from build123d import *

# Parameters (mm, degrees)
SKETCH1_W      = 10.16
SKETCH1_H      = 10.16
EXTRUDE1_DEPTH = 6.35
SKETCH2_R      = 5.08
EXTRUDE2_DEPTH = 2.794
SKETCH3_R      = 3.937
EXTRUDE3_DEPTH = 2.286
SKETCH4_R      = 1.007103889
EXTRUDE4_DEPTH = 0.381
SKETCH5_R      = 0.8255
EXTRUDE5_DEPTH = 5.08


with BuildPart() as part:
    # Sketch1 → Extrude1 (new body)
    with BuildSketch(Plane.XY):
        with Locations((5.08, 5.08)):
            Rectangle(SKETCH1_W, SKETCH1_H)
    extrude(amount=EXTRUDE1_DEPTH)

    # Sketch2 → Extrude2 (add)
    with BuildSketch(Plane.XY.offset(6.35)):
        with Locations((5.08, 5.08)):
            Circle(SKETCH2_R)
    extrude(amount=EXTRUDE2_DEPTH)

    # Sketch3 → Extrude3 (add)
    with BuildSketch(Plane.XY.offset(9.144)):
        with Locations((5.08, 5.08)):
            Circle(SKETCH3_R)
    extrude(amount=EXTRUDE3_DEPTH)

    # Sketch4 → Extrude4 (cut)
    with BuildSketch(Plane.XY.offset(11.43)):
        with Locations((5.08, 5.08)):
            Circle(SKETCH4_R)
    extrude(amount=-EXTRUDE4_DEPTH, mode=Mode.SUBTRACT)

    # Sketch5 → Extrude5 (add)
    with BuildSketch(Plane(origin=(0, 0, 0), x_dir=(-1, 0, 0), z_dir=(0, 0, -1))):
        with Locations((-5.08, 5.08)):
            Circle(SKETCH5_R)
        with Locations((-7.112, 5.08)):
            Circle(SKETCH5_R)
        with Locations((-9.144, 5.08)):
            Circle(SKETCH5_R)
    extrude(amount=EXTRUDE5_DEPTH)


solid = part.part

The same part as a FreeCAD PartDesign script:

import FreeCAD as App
import Part
import Sketcher
from FreeCAD import Vector
Q = App.Units.Quantity

doc = App.newDocument("Part")
params = doc.addObject("Spreadsheet::Sheet", "Params")
for row, (alias, value) in enumerate([
    ("sketch1_width", "0.4 in"),
    ("pad1_length", "0.25 in"),
    ("sketch2_diameter", "0.4 in"),
    ("pad2_length", "0.11 in"),
    ("sketch3_diameter", "0.31 in"),
    ("pad3_length", "0.09 in"),
    ("pocket1_length", "0.015 in"),
    ("sketch5_diameter", "0.065 in"),
    ("pad4_length", "0.2 in"),
], start=1):
    params.set(f"A{row}", alias)
    params.set(f"B{row}", "=" + value)
    params.setAlias(f"B{row}", alias)

body = doc.addObject("PartDesign::Body", "Body")

# Sketch on XY plane
sketch1 = doc.addObject("Sketcher::SketchObject", "Sketch")
body.addObject(sketch1)
sketch1.AttachmentSupport = (doc.XY_Plane, [""])
sketch1.MapMode = "FlatFace"
sketch1.addGeometry([
    Part.LineSegment(Vector(0, 10, 0), Vector(0, 0, 0)),
    Part.LineSegment(Vector(0, 0, 0), Vector(10, 0, 0)),
    Part.LineSegment(Vector(10, 0, 0), Vector(10, 10, 0)),
    Part.LineSegment(Vector(10, 10, 0), Vector(0, 10, 0)),
], False)
sketch1.addConstraint([
    Sketcher.Constraint("Coincident", 0, 2, 1, 1),
    Sketcher.Constraint("Coincident", 1, 2, 2, 1),
    Sketcher.Constraint("Coincident", 2, 2, 3, 1),
    Sketcher.Constraint("Coincident", 3, 2, 0, 1),
    Sketcher.Constraint("Vertical", 0),
    Sketcher.Constraint("Horizontal", 1),
    Sketcher.Constraint("Vertical", 2),
    Sketcher.Constraint("Horizontal", 3),
    Sketcher.Constraint("Coincident", 0, 2, -1, 1),
    Sketcher.Constraint("Equal", 3, 0),
    Sketcher.Constraint("DistanceX", 1, 1, 1, 2, Q("0.4 in")),
])
sketch1.setExpression("Constraints[10]", "Params.sketch1_width")
pad1 = doc.addObject("PartDesign::Pad", "Pad")
body.addObject(pad1)
pad1.Profile = sketch1
pad1.setExpression("Length", "Params.pad1_length")

# Sketch on XY plane
sketch2 = doc.addObject("Sketcher::SketchObject", "Sketch001")
body.addObject(sketch2)
sketch2.AttachmentSupport = (doc.XY_Plane, [""])
sketch2.MapMode = "FlatFace"
sketch2.AttachmentOffset = App.Placement(Vector(0, 0, 0.25 * 25.4), App.Rotation())
sketch2.addGeometry(Part.Circle(Vector(5, 5, 0), Vector(0, 0, 1), 5), False)
sketch2.addConstraint([
    Sketcher.Constraint("Diameter", 0, Q("0.4 in")),
    Sketcher.Constraint("DistanceX", -1, 1, 0, 3, Q("0.2 in")),
    Sketcher.Constraint("DistanceY", -1, 1, 0, 3, Q("0.2 in")),
])
sketch2.setExpression("Constraints[0]", "Params.sketch2_diameter")
pad2 = doc.addObject("PartDesign::Pad", "Pad001")
body.addObject(pad2)
pad2.Profile = sketch2
pad2.setExpression("Length", "Params.pad2_length")

# Sketch on XY plane
sketch3 = doc.addObject("Sketcher::SketchObject", "Sketch002")
body.addObject(sketch3)
sketch3.AttachmentSupport = (doc.XY_Plane, [""])
sketch3.MapMode = "FlatFace"
sketch3.AttachmentOffset = App.Placement(Vector(0, 0, 0.36 * 25.4), App.Rotation())
sketch3.addGeometry(Part.Circle(Vector(5.1, 5.1, 0), Vector(0, 0, 1), 3.9), False)
sketch3.addConstraint([
    Sketcher.Constraint("Diameter", 0, Q("0.31 in")),
    Sketcher.Constraint("DistanceX", -1, 1, 0, 3, Q("0.2 in")),
    Sketcher.Constraint("DistanceY", -1, 1, 0, 3, Q("0.2 in")),
])
sketch3.setExpression("Constraints[0]", "Params.sketch3_diameter")
pad3 = doc.addObject("PartDesign::Pad", "Pad002")
body.addObject(pad3)
pad3.Profile = sketch3
pad3.setExpression("Length", "Params.pad3_length")

# Sketch on XY plane
sketch4 = doc.addObject("Sketcher::SketchObject", "Sketch003")
body.addObject(sketch4)
sketch4.AttachmentSupport = (doc.XY_Plane, [""])
sketch4.MapMode = "FlatFace"
sketch4.AttachmentOffset = App.Placement(Vector(0, 0, 0.45 * 25.4), App.Rotation())
sketch4.addGeometry(Part.Circle(Vector(5.1, 5.1, 0), Vector(0, 0, 1), 1), False)
sketch4.addConstraint([
    Sketcher.Constraint("DistanceX", -1, 1, 0, 3, Q("0.2 in")),
    Sketcher.Constraint("DistanceY", -1, 1, 0, 3, Q("0.2 in")),
    Sketcher.Constraint("Diameter", 0, 2.014208),
])
pocket1 = doc.addObject("PartDesign::Pocket", "Pocket")
body.addObject(pocket1)
pocket1.Profile = sketch4
pocket1.setExpression("Length", "Params.pocket1_length")

# Sketch on XY plane
sketch5 = doc.addObject("Sketcher::SketchObject", "Sketch004")
body.addObject(sketch5)
sketch5.AttachmentSupport = (doc.XY_Plane, [""])
sketch5.MapMode = "FlatFace"
sketch5.addGeometry([
    Part.Circle(Vector(5.1, 5.1, 0), Vector(0, 0, 1), 0.8),
    Part.Circle(Vector(7.1, 5.1, 0), Vector(0, 0, 1), 0.8),
    Part.Circle(Vector(9.1, 5.1, 0), Vector(0, 0, 1), 0.8),
], False)
sketch5.addConstraint([
    Sketcher.Constraint("Equal", 0, 1),
    Sketcher.Constraint("Equal", 1, 2),
    Sketcher.Constraint("Horizontal", 0, 3, 1, 3),
    Sketcher.Constraint("Horizontal", 1, 3, 2, 3),
    Sketcher.Constraint("Diameter", 0, Q("0.065 in")),
    Sketcher.Constraint("DistanceX", -1, 1, 0, 3, Q("0.2 in")),
    Sketcher.Constraint("DistanceY", -1, 1, 0, 3, Q("0.2 in")),
    Sketcher.Constraint("DistanceX", -1, 1, 1, 3, Q("0.28 in")),
    Sketcher.Constraint("DistanceX", -1, 1, 2, 3, Q("0.36 in")),
])
sketch5.setExpression("Constraints[4]", "Params.sketch5_diameter")
pad4 = doc.addObject("PartDesign::Pad", "Pad003")
body.addObject(pad4)
pad4.Profile = sketch5
pad4.setExpression("Length", "Params.pad4_length")
pad4.Reversed = True

doc.recompute()
